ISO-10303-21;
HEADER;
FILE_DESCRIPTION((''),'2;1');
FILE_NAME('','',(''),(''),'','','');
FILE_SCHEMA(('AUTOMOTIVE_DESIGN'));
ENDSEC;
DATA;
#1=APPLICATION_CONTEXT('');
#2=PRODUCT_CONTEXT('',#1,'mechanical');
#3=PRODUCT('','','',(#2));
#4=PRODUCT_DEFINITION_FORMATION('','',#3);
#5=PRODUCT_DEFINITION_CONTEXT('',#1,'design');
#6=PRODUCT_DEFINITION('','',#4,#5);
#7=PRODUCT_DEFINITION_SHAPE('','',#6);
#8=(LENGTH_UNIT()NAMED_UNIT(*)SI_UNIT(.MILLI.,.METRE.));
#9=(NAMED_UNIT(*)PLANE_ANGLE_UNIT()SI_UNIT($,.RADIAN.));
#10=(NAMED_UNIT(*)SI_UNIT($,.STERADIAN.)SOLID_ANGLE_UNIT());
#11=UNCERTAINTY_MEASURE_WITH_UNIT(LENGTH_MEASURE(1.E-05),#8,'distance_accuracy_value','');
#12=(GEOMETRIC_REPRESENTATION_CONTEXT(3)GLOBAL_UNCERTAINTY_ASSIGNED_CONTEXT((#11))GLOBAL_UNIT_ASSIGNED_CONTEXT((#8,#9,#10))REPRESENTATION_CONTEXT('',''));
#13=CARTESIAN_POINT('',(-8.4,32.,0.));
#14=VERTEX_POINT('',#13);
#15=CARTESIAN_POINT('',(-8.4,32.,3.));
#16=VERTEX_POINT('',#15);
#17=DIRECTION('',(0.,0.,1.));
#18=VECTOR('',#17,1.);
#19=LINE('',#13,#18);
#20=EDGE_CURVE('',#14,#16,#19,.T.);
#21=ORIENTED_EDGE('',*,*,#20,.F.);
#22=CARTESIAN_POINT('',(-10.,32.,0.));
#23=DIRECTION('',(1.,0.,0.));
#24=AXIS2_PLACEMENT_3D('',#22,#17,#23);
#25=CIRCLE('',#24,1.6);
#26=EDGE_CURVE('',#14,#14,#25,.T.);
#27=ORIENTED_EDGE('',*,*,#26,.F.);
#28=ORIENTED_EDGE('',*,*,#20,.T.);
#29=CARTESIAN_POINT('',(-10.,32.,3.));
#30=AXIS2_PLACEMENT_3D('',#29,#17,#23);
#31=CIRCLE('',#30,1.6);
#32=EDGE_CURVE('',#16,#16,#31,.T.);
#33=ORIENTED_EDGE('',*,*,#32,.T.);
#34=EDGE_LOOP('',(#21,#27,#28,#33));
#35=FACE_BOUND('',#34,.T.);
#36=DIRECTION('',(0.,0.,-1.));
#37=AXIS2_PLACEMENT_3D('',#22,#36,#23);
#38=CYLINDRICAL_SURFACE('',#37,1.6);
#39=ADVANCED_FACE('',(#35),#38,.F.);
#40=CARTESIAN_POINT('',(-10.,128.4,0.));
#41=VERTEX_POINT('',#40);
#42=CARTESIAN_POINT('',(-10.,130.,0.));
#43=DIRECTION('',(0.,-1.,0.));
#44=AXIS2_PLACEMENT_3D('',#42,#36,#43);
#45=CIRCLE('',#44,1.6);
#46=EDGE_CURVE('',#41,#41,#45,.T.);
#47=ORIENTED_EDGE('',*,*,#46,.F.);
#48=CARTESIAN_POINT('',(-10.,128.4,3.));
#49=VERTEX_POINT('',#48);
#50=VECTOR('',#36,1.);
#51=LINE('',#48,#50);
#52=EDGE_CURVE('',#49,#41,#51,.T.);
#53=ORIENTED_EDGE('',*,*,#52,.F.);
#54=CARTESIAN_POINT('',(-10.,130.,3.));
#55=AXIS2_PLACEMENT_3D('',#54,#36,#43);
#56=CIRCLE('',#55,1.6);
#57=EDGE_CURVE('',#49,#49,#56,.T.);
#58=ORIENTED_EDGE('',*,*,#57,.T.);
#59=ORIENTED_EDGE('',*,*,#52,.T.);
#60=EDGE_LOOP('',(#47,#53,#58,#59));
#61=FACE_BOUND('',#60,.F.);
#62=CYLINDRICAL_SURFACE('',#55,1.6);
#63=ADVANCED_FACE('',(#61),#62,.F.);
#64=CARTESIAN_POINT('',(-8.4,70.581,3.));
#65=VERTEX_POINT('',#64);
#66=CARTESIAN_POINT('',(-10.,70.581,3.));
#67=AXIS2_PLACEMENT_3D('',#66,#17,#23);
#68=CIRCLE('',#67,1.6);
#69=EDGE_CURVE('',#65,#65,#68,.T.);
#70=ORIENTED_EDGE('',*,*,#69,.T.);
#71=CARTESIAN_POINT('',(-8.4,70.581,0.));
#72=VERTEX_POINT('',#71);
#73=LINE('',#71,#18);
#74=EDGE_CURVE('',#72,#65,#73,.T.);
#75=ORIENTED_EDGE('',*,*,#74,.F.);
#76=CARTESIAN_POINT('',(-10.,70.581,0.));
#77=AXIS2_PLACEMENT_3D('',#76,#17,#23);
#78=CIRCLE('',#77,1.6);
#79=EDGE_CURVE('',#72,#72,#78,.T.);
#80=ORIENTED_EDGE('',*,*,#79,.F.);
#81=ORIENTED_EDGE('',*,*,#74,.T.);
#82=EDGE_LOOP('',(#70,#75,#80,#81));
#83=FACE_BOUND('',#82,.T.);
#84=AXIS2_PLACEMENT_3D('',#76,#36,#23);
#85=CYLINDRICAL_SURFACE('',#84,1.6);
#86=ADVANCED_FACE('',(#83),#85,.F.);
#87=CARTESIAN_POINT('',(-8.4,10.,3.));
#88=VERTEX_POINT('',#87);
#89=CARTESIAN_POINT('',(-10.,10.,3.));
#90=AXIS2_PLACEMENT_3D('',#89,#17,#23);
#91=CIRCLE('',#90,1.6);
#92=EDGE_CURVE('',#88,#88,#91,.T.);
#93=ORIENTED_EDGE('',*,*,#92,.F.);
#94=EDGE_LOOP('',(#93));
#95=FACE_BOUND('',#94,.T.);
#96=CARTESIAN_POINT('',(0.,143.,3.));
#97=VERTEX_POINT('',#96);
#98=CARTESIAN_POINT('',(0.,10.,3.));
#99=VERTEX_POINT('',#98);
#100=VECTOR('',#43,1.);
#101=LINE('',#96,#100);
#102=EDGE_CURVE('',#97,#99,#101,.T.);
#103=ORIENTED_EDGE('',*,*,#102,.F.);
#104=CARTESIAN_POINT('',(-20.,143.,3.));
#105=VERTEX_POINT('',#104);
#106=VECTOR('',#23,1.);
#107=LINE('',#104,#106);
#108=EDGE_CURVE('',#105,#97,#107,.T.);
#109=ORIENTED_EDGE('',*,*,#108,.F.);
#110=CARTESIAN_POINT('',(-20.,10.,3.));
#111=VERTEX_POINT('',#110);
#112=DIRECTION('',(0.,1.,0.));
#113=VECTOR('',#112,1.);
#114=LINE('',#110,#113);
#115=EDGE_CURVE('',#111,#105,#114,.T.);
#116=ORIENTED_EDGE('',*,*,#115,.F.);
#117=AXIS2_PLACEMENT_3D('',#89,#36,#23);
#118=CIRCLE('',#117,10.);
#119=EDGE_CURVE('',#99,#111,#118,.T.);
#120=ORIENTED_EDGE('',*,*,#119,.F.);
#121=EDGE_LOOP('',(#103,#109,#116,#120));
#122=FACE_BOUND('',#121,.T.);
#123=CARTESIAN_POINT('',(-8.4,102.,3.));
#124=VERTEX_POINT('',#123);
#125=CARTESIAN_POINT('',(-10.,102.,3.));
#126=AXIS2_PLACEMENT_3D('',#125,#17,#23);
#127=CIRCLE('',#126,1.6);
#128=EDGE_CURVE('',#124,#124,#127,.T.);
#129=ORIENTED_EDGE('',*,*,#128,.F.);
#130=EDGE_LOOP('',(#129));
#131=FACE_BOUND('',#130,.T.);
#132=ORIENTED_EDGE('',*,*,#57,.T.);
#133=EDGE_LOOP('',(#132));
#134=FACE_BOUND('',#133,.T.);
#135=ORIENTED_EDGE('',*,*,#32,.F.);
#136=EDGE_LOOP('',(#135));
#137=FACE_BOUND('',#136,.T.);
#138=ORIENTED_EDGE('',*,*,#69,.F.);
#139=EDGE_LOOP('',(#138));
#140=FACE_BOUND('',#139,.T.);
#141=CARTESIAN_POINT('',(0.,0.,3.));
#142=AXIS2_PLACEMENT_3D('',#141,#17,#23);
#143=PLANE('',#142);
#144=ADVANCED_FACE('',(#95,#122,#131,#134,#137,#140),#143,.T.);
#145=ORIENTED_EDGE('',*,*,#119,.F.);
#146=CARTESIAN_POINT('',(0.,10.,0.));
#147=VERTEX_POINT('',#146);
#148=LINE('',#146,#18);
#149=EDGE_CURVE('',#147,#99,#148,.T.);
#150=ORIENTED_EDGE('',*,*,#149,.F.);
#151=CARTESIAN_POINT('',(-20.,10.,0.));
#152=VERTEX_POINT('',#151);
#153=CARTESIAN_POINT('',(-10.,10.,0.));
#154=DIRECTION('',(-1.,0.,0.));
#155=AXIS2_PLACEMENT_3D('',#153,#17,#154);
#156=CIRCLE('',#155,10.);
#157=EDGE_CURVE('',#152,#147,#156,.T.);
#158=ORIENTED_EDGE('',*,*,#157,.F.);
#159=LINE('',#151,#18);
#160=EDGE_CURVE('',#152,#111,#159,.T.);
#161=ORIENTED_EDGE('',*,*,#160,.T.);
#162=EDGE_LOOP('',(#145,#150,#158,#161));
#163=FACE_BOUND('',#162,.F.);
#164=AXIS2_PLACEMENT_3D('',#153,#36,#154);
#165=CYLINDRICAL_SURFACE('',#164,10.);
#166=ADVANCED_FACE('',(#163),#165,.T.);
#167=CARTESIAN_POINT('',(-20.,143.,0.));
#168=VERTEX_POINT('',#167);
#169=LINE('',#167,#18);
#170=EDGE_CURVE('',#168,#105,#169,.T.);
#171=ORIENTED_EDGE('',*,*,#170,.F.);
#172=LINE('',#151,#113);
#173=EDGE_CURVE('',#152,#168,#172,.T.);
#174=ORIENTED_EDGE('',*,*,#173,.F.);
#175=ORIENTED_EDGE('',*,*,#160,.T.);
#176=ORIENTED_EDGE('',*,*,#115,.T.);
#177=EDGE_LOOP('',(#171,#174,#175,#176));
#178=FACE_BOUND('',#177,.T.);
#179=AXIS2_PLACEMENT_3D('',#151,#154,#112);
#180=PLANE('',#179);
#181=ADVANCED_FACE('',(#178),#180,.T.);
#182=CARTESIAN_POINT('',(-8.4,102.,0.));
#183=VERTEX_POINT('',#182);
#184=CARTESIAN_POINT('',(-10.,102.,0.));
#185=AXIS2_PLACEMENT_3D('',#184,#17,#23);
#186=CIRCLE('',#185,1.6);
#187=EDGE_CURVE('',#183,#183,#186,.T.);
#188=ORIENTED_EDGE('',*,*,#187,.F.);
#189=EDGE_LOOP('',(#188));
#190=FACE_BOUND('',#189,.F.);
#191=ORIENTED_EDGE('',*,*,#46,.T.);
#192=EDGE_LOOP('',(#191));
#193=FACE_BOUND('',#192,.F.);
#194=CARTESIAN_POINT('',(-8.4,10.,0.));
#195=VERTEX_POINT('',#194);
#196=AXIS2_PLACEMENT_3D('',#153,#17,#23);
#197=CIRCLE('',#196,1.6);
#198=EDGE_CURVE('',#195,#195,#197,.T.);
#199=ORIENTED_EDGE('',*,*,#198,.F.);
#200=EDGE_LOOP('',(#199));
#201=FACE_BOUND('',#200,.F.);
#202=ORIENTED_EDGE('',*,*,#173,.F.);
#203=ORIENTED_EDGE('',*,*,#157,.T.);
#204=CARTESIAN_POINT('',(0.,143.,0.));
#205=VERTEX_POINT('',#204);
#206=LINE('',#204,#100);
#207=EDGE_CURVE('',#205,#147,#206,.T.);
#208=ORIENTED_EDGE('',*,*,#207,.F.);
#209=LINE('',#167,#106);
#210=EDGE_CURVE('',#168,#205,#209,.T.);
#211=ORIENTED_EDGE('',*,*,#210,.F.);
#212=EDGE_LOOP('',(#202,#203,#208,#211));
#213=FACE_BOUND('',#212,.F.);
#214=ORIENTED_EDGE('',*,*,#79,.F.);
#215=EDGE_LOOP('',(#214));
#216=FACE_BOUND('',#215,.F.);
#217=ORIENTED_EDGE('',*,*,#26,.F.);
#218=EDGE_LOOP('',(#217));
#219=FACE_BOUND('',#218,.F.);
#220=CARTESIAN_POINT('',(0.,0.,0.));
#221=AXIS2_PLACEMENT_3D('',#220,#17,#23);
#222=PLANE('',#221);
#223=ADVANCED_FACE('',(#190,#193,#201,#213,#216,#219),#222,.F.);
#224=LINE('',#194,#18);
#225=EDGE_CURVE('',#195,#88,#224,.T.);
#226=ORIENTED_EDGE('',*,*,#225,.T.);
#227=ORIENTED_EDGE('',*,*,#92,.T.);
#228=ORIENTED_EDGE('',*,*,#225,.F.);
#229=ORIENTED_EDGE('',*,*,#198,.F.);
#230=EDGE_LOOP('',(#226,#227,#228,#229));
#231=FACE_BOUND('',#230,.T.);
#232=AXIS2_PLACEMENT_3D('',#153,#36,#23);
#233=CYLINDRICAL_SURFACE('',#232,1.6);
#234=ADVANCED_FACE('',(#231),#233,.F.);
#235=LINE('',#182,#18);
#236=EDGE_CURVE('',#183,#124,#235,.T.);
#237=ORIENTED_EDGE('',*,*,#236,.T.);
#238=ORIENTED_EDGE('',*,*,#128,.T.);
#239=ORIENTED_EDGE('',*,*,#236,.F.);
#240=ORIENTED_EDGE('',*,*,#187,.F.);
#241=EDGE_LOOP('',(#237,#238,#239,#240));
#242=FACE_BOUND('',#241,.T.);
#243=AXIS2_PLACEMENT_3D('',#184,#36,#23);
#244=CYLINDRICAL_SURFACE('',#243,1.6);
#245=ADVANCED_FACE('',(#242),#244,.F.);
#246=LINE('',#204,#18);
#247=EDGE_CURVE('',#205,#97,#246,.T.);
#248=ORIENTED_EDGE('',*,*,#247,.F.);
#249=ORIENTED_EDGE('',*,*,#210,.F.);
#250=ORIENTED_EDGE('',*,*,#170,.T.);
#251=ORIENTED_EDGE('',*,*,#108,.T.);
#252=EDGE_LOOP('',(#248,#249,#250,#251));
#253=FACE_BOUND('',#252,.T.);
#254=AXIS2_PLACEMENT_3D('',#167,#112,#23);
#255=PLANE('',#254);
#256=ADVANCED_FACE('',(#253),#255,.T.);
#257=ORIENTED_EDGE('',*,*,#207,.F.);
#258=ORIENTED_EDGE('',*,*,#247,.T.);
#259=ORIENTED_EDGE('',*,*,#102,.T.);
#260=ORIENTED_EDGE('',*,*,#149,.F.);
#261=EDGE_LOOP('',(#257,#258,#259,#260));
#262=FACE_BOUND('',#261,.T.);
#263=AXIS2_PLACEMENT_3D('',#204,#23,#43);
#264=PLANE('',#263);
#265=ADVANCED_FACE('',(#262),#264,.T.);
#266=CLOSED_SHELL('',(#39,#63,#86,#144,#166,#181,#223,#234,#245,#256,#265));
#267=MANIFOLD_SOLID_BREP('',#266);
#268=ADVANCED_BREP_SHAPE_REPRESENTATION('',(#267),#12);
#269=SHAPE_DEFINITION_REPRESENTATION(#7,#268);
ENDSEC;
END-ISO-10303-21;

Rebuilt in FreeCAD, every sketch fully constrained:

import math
import FreeCAD as App
import Part
import Sketcher

V = App.Vector
Q = App.Units.Quantity

doc = App.newDocument("Part")
body = doc.addObject("PartDesign::Body", "Body")

# Sketch on XY plane
sketch1 = body.newObject("Sketcher::SketchObject", "Sketch")
sketch1.AttachmentSupport = (doc.getObject("XY_Plane"), [""])
sketch1.MapMode = "FlatFace"
sketch1.addGeometry([
    Part.LineSegment(V(-20, 143, 0), V(-20, 10, 0)),  # 0
    Part.ArcOfCircle(Part.Circle(V(-10, 10, 0), V(0, 0, 1), 10), math.radians(180), math.radians(360)),  # 1
    Part.LineSegment(V(0, 10, 0), V(0, 143, 0)),  # 2
    Part.LineSegment(V(0, 143, 0), V(-20, 143, 0)),  # 3
    Part.Circle(V(-10, 10, 0), V(0, 0, 1), 1.6),  # 4
    Part.Circle(V(-10, 32, 0), V(0, 0, 1), 1.6),  # 5
    Part.Circle(V(-10, 70.581, 0), V(0, 0, 1), 1.6),  # 6
    Part.Circle(V(-10, 102, 0), V(0, 0, 1), 1.6),  # 7
], False)
sketch1.addConstraint([
    Sketcher.Constraint("Tangent", 0, 2, 1, 1),
    Sketcher.Constraint("Tangent", 1, 2, 2, 1),
    Sketcher.Constraint("Coincident", 2, 2, 3, 1),
    Sketcher.Constraint("Coincident", 3, 2, 0, 1),
    Sketcher.Constraint("Vertical", 0),
    Sketcher.Constraint("Vertical", 2),
    Sketcher.Constraint("Horizontal", 3),
    Sketcher.Constraint("Coincident", 4, 3, 1, 3),
    Sketcher.Constraint("Equal", 4, 5),
    Sketcher.Constraint("Equal", 5, 6),
    Sketcher.Constraint("Equal", 6, 7),
    Sketcher.Constraint("PointOnObject", 1, 2, -2),
    Sketcher.Constraint("Vertical", 4, 3, 5, 3),
    Sketcher.Constraint("Vertical", 5, 3, 6, 3),
    Sketcher.Constraint("Vertical", 6, 3, 7, 3),
    Sketcher.Constraint("Radius", 1, Q("10 mm")),
    Sketcher.Constraint("Diameter", 4, Q("3.2 mm")),
    Sketcher.Constraint("DistanceY", -1, 1, 1, 3, Q("10 mm")),
    Sketcher.Constraint("DistanceY", -1, 1, 5, 3, Q("32 mm")),
    Sketcher.Constraint("DistanceY", -1, 1, 7, 3, Q("102 mm")),
    Sketcher.Constraint("DistanceY", -1, 1, 2, 2, Q("143 mm")),
    Sketcher.Constraint("DistanceY", 1, 3, 6, 3, Q("60.581 mm")),
])
pad1 = body.newObject("PartDesign::Pad", "Pad")
pad1.Profile = sketch1
pad1.Length = 3

# Sketch on XY plane
sketch2 = body.newObject("Sketcher::SketchObject", "Sketch001")
sketch2.AttachmentSupport = (doc.getObject("XY_Plane"), [""])
sketch2.MapMode = "FlatFace"
sketch2.AttachmentOffset = App.Placement(V(0, 0, 3), App.Rotation())
sketch2.addGeometry(Part.Circle(V(-10, 130, 0), V(0, 0, 1), 1.6), False)
sketch2.addConstraint([
    Sketcher.Constraint("Diameter", 0, Q("3.2 mm")),
    Sketcher.Constraint("DistanceX", 0, 3, -1, 1, Q("10 mm")),
    Sketcher.Constraint("DistanceY", -1, 1, 0, 3, Q("130 mm")),
])
doc.recompute()
hole = body.newObject("PartDesign::Hole", "Hole")
hole.Profile = sketch2
hole.ThreadType = "None"
hole.Diameter = 3.2
hole.DepthType = "ThroughAll"

doc.recompute()
